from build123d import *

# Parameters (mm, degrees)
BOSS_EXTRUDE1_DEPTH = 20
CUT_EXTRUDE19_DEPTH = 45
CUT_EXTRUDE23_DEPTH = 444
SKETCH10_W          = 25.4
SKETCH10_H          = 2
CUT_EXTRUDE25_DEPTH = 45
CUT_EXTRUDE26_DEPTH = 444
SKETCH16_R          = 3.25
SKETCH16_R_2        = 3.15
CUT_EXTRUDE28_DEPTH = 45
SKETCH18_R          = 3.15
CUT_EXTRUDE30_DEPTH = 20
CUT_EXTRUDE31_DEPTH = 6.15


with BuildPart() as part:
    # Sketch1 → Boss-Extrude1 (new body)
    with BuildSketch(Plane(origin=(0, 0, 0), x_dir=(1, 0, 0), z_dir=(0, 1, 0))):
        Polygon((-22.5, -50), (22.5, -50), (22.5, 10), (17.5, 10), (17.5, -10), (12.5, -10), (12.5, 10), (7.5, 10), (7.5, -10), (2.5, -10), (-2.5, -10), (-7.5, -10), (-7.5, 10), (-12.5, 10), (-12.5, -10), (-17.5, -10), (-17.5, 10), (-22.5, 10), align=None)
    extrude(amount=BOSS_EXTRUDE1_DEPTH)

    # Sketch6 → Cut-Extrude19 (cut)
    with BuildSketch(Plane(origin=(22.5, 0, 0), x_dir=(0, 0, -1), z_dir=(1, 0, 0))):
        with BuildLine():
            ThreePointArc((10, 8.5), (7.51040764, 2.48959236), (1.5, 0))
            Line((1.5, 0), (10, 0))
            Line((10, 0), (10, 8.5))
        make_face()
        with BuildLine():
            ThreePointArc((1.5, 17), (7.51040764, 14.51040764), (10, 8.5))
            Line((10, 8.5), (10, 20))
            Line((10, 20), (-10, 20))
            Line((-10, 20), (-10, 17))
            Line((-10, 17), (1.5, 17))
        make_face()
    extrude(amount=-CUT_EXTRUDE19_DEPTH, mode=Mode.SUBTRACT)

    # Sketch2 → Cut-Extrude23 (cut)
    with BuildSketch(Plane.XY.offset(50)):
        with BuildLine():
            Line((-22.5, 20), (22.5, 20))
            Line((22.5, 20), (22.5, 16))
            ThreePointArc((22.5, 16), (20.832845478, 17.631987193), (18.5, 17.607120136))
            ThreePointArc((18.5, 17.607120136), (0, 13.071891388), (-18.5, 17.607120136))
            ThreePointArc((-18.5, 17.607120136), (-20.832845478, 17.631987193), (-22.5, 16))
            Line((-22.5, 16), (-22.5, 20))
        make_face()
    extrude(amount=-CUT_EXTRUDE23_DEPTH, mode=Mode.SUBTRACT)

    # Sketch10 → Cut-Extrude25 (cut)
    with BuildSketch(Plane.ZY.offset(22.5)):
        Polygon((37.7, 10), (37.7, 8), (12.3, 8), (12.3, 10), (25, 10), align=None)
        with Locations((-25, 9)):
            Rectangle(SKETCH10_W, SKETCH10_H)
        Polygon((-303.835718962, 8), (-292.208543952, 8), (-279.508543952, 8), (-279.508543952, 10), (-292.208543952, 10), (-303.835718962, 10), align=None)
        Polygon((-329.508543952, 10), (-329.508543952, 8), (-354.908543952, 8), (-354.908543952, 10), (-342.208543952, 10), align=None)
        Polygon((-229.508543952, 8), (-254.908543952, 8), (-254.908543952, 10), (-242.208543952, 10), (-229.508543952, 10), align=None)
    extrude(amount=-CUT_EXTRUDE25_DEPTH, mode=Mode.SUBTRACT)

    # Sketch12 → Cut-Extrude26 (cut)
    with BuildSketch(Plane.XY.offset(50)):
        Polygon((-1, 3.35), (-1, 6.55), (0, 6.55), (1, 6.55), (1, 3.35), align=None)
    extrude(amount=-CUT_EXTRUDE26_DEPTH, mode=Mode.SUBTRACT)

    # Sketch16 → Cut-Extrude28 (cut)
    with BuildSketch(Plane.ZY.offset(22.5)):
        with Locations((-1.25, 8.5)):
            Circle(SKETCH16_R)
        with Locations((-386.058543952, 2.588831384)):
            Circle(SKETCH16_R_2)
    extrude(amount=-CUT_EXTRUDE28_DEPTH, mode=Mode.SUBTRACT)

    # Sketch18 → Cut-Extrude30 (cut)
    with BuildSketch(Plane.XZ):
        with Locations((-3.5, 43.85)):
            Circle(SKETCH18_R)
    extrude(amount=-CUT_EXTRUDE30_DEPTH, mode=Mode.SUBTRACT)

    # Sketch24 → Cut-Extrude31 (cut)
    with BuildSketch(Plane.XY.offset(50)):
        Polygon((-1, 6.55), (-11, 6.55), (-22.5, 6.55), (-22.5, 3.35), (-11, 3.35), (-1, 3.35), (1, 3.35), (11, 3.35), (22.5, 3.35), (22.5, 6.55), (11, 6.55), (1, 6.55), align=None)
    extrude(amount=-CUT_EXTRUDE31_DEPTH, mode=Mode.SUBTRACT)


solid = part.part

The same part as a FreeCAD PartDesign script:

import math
import FreeCAD as App
import Part
import Sketcher

V = App.Vector

doc = App.newDocument("Part")
body = doc.addObject("PartDesign::Body", "Body")

sketch1 = doc.addObject("Sketcher::SketchObject", "Sketch")
body.addObject(sketch1)
sketch1.AttachmentSupport = (doc.XZ_Plane, [""])
sketch1.MapMode = "FlatFace"
sketch1.addGeometry([
    Part.LineSegment(V(-22, 50, 0), V(22, 50, 0)),
    Part.LineSegment(V(22, 50, 0), V(22, -10, 0)),
    Part.LineSegment(V(22, -10, 0), V(18, -10, 0)),
    Part.LineSegment(V(18, -10, 0), V(18, 10, 0)),
    Part.LineSegment(V(18, 10, 0), V(12, 10, 0)),
    Part.LineSegment(V(12, 10, 0), V(12, -10, 0)),
    Part.LineSegment(V(12, -10, 0), V(8, -10, 0)),
    Part.LineSegment(V(8, -10, 0), V(8, 10, 0)),
    Part.LineSegment(V(8, 10, 0), V(-8, 10, 0)),
    Part.LineSegment(V(-8, 10, 0), V(-8, -10, 0)),
    Part.LineSegment(V(-8, -10, 0), V(-12, -10, 0)),
    Part.LineSegment(V(-12, -10, 0), V(-12, 10, 0)),
    Part.LineSegment(V(-12, 10, 0), V(-18, 10, 0)),
    Part.LineSegment(V(-18, 10, 0), V(-18, -10, 0)),
    Part.LineSegment(V(-18, -10, 0), V(-22, -10, 0)),
    Part.LineSegment(V(-22, -10, 0), V(-22, 50, 0)),
], False)
sketch1.addConstraint([
    Sketcher.Constraint("Coincident", 0, 2, 1, 1),
    Sketcher.Constraint("Coincident", 1, 2, 2, 1),
    Sketcher.Constraint("Coincident", 2, 2, 3, 1),
    Sketcher.Constraint("Coincident", 3, 2, 4, 1),
    Sketcher.Constraint("Coincident", 4, 2, 5, 1),
    Sketcher.Constraint("Coincident", 5, 2, 6, 1),
    Sketcher.Constraint("Coincident", 6, 2, 7, 1),
    Sketcher.Constraint("Coincident", 7, 2, 8, 1),
    Sketcher.Constraint("Coincident", 8, 2, 9, 1),
    Sketcher.Constraint("Coincident", 9, 2, 10, 1),
    Sketcher.Constraint("Coincident", 10, 2, 11, 1),
    Sketcher.Constraint("Coincident", 11, 2, 12, 1),
    Sketcher.Constraint("Coincident", 12, 2, 13, 1),
    Sketcher.Constraint("Coincident", 13, 2, 14, 1),
    Sketcher.Constraint("Coincident", 14, 2, 15, 1),
    Sketcher.Constraint("Coincident", 15, 2, 0, 1),
    Sketcher.Constraint("Horizontal", 0),
    Sketcher.Constraint("Vertical", 1),
    Sketcher.Constraint("Horizontal", 2),
    Sketcher.Constraint("Vertical", 3),
    Sketcher.Constraint("Horizontal", 4),
    Sketcher.Constraint("Vertical", 5),
    Sketcher.Constraint("Horizontal", 6),
    Sketcher.Constraint("Vertical", 7),
    Sketcher.Constraint("Horizontal", 8),
    Sketcher.Constraint("Vertical", 9),
    Sketcher.Constraint("Horizontal", 10),
    Sketcher.Constraint("Vertical", 11),
    Sketcher.Constraint("Horizontal", 12),
    Sketcher.Constraint("Vertical", 13),
    Sketcher.Constraint("Horizontal", 14),
    Sketcher.Constraint("Vertical", 15),
    Sketcher.Constraint("Symmetric", 6, 2, 8, 2, -1, 1),
    Sketcher.Constraint("Symmetric", 4, 2, 10, 2, -1, 1),
    Sketcher.Constraint("Symmetric", 2, 2, 12, 2, -1, 1),
    Sketcher.Constraint("Symmetric", 1, 2, 14, 2, -2),
    Sketcher.Constraint("Horizontal", 2, 2, 5, 2),
    Sketcher.Constraint("Horizontal", 4, 2, 7, 2),
    Sketcher.Constraint("Equal", 2, 4),
    Sketcher.Constraint("Equal", 4, 6),
    Sketcher.Constraint("DistanceX", 0, 1, 0, 2, 45.0),
    Sketcher.Constraint("DistanceX", 2, 2, 2, 1, 5.0),
    Sketcher.Constraint("DistanceY", 1, 2, 1, 1, 60.0),
    Sketcher.Constraint("DistanceY", 3, 1, 3, 2, 20.0),
])
pad1 = doc.addObject("PartDesign::Pad", "Pad")
body.addObject(pad1)
pad1.Profile = sketch1
pad1.Length = 20
pad1.Reversed = True

sketch2 = doc.addObject("Sketcher::SketchObject", "Sketch001")
body.addObject(sketch2)
sketch2.AttachmentSupport = (doc.YZ_Plane, [""])
sketch2.MapMode = "FlatFace"
sketch2.AttachmentOffset = App.Placement(V(0, 0, 22.5), App.Rotation())
sketch2.addGeometry([
    Part.ArcOfCircle(Part.Circle(V(8.5, -1.5, 0), V(0, 0, 1), 8.5), math.radians(180), math.radians(270)),
    Part.LineSegment(V(0, -1.5, 0), V(0, -10, 0)),
    Part.LineSegment(V(0, -10, 0), V(8.5, -10, 0)),
    Part.ArcOfCircle(Part.Circle(V(8.5, -1.5, 0), V(0, 0, 1), 8.5), math.radians(-90), math.radians(0)),
    Part.LineSegment(V(8.5, -10, 0), V(20, -10, 0)),
    Part.LineSegment(V(20, -10, 0), V(20, 10, 0)),
    Part.LineSegment(V(20, 10, 0), V(17, 10, 0)),
    Part.LineSegment(V(17, 10, 0), V(17, -1.5, 0)),
], False)
sketch2.addConstraint([
    Sketcher.Constraint("Tangent", 0, 1, 1, 1),
    Sketcher.Constraint("Coincident", 1, 2, 2, 1),
    Sketcher.Constraint("Tangent", 2, 2, 0, 2),
    Sketcher.Constraint("Tangent", 3, 1, 4, 1),
    Sketcher.Constraint("Coincident", 4, 2, 5, 1),
    Sketcher.Constraint("Coincident", 5, 2, 6, 1),
    Sketcher.Constraint("Coincident", 6, 2, 7, 1),
    Sketcher.Constraint("Tangent", 7, 2, 3, 2),
    Sketcher.Constraint("Vertical", 1),
    Sketcher.Constraint("Horizontal", 2),
    Sketcher.Constraint("Horizontal", 4),
    Sketcher.Constraint("Vertical", 5),
    Sketcher.Constraint("Horizontal", 6),
    Sketcher.Constraint("Vertical", 7),
    Sketcher.Constraint("Coincident", 3, 3, 0, 3),
    Sketcher.Constraint("Equal", 0, 3),
    Sketcher.Constraint("PointOnObject", 0, 1, -2),
    Sketcher.Constraint("Equal", 4, 7),
    Sketcher.Constraint("Radius", 0, 8.5),
    Sketcher.Constraint("DistanceX", 6, 2, 6, 1, 3.0),
    Sketcher.Constraint("DistanceY", 1, 2, -1, 1, 10.0),
])
pocket1 = doc.addObject("PartDesign::Pocket", "Pocket")
body.addObject(pocket1)
pocket1.Profile = sketch2
pocket1.Length = 45

sketch3 = doc.addObject("Sketcher::SketchObject", "Sketch002")
body.addObject(sketch3)
sketch3.AttachmentSupport = (doc.XY_Plane, [""])
sketch3.MapMode = "FlatFace"
sketch3.AttachmentOffset = App.Placement(V(0, 0, 50), App.Rotation())
sketch3.addGeometry([
    Part.LineSegment(V(22.5, 20, 0), V(-22.5, 20, 0)),
    Part.LineSegment(V(-22.5, 20, 0), V(-22.5, 16, 0)),
    Part.ArcOfCircle(Part.Circle(V(-19.7, 14.8, 0), V(0, 0, 1), 3), math.radians(67), math.radians(157)),
    Part.ArcOfCircle(Part.Circle(V(0, 53.1, 0), V(0, 0, 1), 40), math.radians(-118), math.radians(-62)),
    Part.ArcOfCircle(Part.Circle(V(19.7, 14.8, 0), V(0, 0, 1), 3), math.radians(23), math.radians(113)),
    Part.LineSegment(V(22.5, 16, 0), V(22.5, 20, 0)),
], False)
sketch3.addConstraint([
    Sketcher.Constraint("Coincident", 0, 2, 1, 1),
    Sketcher.Constraint("Coincident", 1, 2, 2, 2),
    Sketcher.Constraint("Coincident", 2, 1, 3, 1),
    Sketcher.Constraint("Coincident", 3, 2, 4, 2),
    Sketcher.Constraint("Coincident", 4, 1, 5, 1),
    Sketcher.Constraint("Coincident", 5, 2, 0, 1),
    Sketcher.Constraint("Horizontal", 0),
    Sketcher.Constraint("Vertical", 1),
    Sketcher.Constraint("Vertical", 5),
    Sketcher.Constraint("Equal", 2, 4),
    Sketcher.Constraint("Symmetric", 2, 3, 4, 3, -2),
    Sketcher.Constraint("PointOnObject", 3, 3, -2),
    Sketcher.Constraint("Horizontal", 1, 2, 4, 1),
    Sketcher.Constraint("Radius", 3, 40.0),
    Sketcher.Constraint("DistanceX", 0, 2, 0, 1, 45.0),
    Sketcher.Constraint("DistanceY", 1, 2, 1, 1, 4.0),
    Sketcher.Constraint("DistanceY", -1, 1, 0, 2, 20.0),
    Sketcher.Constraint("DistanceX", 1, 2, 2, 1, 4.0),
    Sketcher.Constraint("Radius", 2, 3.048183),
    Sketcher.Constraint("DistanceX", 2, 3, -1, 1, 19.69644),
])
pocket2 = doc.addObject("PartDesign::Pocket", "Pocket001")
body.addObject(pocket2)
pocket2.Profile = sketch3
pocket2.Length = 444

sketch4 = doc.addObject("Sketcher::SketchObject", "Sketch003")
body.addObject(sketch4)
sketch4.AttachmentSupport = (doc.YZ_Plane, [""])
sketch4.MapMode = "FlatFace"
sketch4.AttachmentOffset = App.Placement(V(0, 0, -22.5), App.Rotation())
sketch4.addGeometry([
    Part.LineSegment(V(8, 37.7, 0), V(10, 37.7, 0)),
    Part.LineSegment(V(10, 37.7, 0), V(10, 12.3, 0)),
    Part.LineSegment(V(10, 12.3, 0), V(8, 12.3, 0)),
    Part.LineSegment(V(8, 12.3, 0), V(8, 37.7, 0)),
    Part.LineSegment(V(10, -37.7, 0), V(8, -37.7, 0)),
    Part.LineSegment(V(8, -37.7, 0), V(8, -12.3, 0)),
    Part.LineSegment(V(8, -12.3, 0), V(10, -12.3, 0)),
    Part.LineSegment(V(10, -12.3, 0), V(10, -37.7, 0)),
    Part.LineSegment(V(8, -303.8, 0), V(8, -279.5, 0)),
    Part.LineSegment(V(8, -279.5, 0), V(10, -279.5, 0)),
    Part.LineSegment(V(10, -279.5, 0), V(10, -303.8, 0)),
    Part.LineSegment(V(10, -303.8, 0), V(8, -303.8, 0)),
    Part.LineSegment(V(8, -329.5, 0), V(10, -329.5, 0)),
    Part.LineSegment(V(10, -329.5, 0), V(10, -354.9, 0)),
    Part.LineSegment(V(10, -354.9, 0), V(8, -354.9, 0)),
    Part.LineSegment(V(8, -354.9, 0), V(8, -329.5, 0)),
    Part.LineSegment(V(8, -254.9, 0), V(8, -229.5, 0)),
    Part.LineSegment(V(8, -229.5, 0), V(10, -229.5, 0)),
    Part.LineSegment(V(10, -229.5, 0), V(10, -254.9, 0)),
    Part.LineSegment(V(10, -254.9, 0), V(8, -254.9, 0)),
], False)
sketch4.addConstraint([
    Sketcher.Constraint("Coincident", 0, 2, 1, 1),
    Sketcher.Constraint("Coincident", 1, 2, 2, 1),
    Sketcher.Constraint("Coincident", 2, 2, 3, 1),
    Sketcher.Constraint("Coincident", 3, 2, 0, 1),
    Sketcher.Constraint("Coincident", 4, 2, 5, 1),
    Sketcher.Constraint("Coincident", 5, 2, 6, 1),
    Sketcher.Constraint("Coincident", 6, 2, 7, 1),
    Sketcher.Constraint("Coincident", 7, 2, 4, 1),
    Sketcher.Constraint("Coincident", 8, 2, 9, 1),
    Sketcher.Constraint("Coincident", 9, 2, 10, 1),
    Sketcher.Constraint("Coincident", 10, 2, 11, 1),
    Sketcher.Constraint("Coincident", 11, 2, 8, 1),
    Sketcher.Constraint("Coincident", 12, 2, 13, 1),
    Sketcher.Constraint("Coincident", 13, 2, 14, 1),
    Sketcher.Constraint("Coincident", 14, 2, 15, 1),
    Sketcher.Constraint("Coincident", 15, 2, 12, 1),
    Sketcher.Constraint("Coincident", 16, 2, 17, 1),
    Sketcher.Constraint("Coincident", 17, 2, 18, 1),
    Sketcher.Constraint("Coincident", 18, 2, 19, 1),
    Sketcher.Constraint("Coincident", 19, 2, 16, 1),
    Sketcher.Constraint("Horizontal", 0),
    Sketcher.Constraint("Vertical", 1),
    Sketcher.Constraint("Horizontal", 2),
    Sketcher.Constraint("Vertical", 3),
    Sketcher.Constraint("Horizontal", 4),
    Sketcher.Constraint("Vertical", 5),
    Sketcher.Constraint("Horizontal", 6),
    Sketcher.Constraint("Vertical", 7),
    Sketcher.Constraint("Vertical", 8),
    Sketcher.Constraint("Horizontal", 9),
    Sketcher.Constraint("Vertical", 10),
    Sketcher.Constraint("Horizontal", 11),
    Sketcher.Constraint("Horizontal", 12),
    Sketcher.Constraint("Vertical", 13),
    Sketcher.Constraint("Horizontal", 14),
    Sketcher.Constraint("Vertical", 15),
    Sketcher.Constraint("Vertical", 16),
    Sketcher.Constraint("Horizontal", 17),
    Sketcher.Constraint("Vertical", 18),
    Sketcher.Constraint("Horizontal", 19),
    Sketcher.Constraint("Symmetric", 3, 2, 4, 2, -1),
    Sketcher.Constraint("Symmetric", 1, 2, 6, 2, -1),
    Sketcher.Constraint("Vertical", 5, 2, 8, 2),
    Sketcher.Constraint("Vertical", 7, 2, 9, 2),
    Sketcher.Constraint("Vertical", 10, 2, 12, 2),
    Sketcher.Constraint("Vertical", 11, 2, 14, 2),
    Sketcher.Constraint("Vertical", 15, 2, 16, 2),
    Sketcher.Constraint("Vertical", 13, 2, 17, 2),
    Sketcher.Constraint("Equal", 7, 13),
    Sketcher.Constraint("Equal", 15, 16),
    Sketcher.Constraint("DistanceX", 0, 1, 0, 2, 2.0),
    Sketcher.Constraint("DistanceY", 1, 2, 1, 1, 25.4),
    Sketcher.Constraint("DistanceX", -1, 1, 0, 2, 10.0),
    Sketcher.Constraint("DistanceY", 4, 2, 2, 2, 50.0),
    Sketcher.Constraint("DistanceY", 12, 2, 9, 2, 50.0),
    Sketcher.Constraint("DistanceY", 8, 2, 16, 2, 50.0),
    Sketcher.Constraint("DistanceY", 8, 1, 8, 2, 24.327175),
    Sketcher.Constraint("DistanceY", 10, 2, -1, 1, 303.835719),
])
pocket3 = doc.addObject("PartDesign::Pocket", "Pocket002")
body.addObject(pocket3)
pocket3.Profile = sketch4
pocket3.Length = 45
pocket3.Reversed = True

sketch5 = doc.addObject("Sketcher::SketchObject", "Sketch004")
body.addObject(sketch5)
sketch5.AttachmentSupport = (doc.XY_Plane, [""])
sketch5.MapMode = "FlatFace"
sketch5.AttachmentOffset = App.Placement(V(0, 0, 50), App.Rotation())
sketch5.addGeometry([
    Part.LineSegment(V(-1, 6.5, 0), V(-1, 3.4, 0)),
    Part.LineSegment(V(-1, 3.4, 0), V(1, 3.4, 0)),
    Part.LineSegment(V(1, 3.4, 0), V(1, 6.5, 0)),
    Part.LineSegment(V(1, 6.5, 0), V(-1, 6.5, 0)),
], False)
sketch5.addConstraint([
    Sketcher.Constraint("Coincident", 0, 2, 1, 1),
    Sketcher.Constraint("Coincident", 1, 2, 2, 1),
    Sketcher.Constraint("Coincident", 2, 2, 3, 1),
    Sketcher.Constraint("Coincident", 3, 2, 0, 1),
    Sketcher.Constraint("Vertical", 0),
    Sketcher.Constraint("Horizontal", 1),
    Sketcher.Constraint("Vertical", 2),
    Sketcher.Constraint("Horizontal", 3),
    Sketcher.Constraint("DistanceX", 1, 1, 1, 2, 2.0),
    Sketcher.Constraint("DistanceY", 0, 2, 0, 1, 3.2),
    Sketcher.Constraint("DistanceX", 0, 2, -1, 1, 1.0),
    Sketcher.Constraint("DistanceY", -1, 1, 0, 2, 3.35),
])
pocket4 = doc.addObject("PartDesign::Pocket", "Pocket003")
body.addObject(pocket4)
pocket4.Profile = sketch5
pocket4.Length = 444

sketch6 = doc.addObject("Sketcher::SketchObject", "Sketch005")
body.addObject(sketch6)
sketch6.AttachmentSupport = (doc.YZ_Plane, [""])
sketch6.MapMode = "FlatFace"
sketch6.AttachmentOffset = App.Placement(V(0, 0, -22.5), App.Rotation())
sketch6.addGeometry([
    Part.Circle(V(8.5, -1.2, 0), V(0, 0, 1), 3.2),
    Part.Circle(V(2.6, -386.1, 0), V(0, 0, 1), 3.1),
], False)
sketch6.addConstraint([
    Sketcher.Constraint("Diameter", 0, 6.5),
    Sketcher.Constraint("Diameter", 1, 6.3),
    Sketcher.Constraint("DistanceX", -1, 1, 0, 3, 8.5),
    Sketcher.Constraint("DistanceY", 0, 3, -1, 1, 1.25),
    Sketcher.Constraint("DistanceX", -1, 1, 1, 3, 2.588831),
    Sketcher.Constraint("DistanceY", 1, 3, -1, 1, 386.058544),
])
pocket5 = doc.addObject("PartDesign::Pocket", "Pocket004")
body.addObject(pocket5)
pocket5.Profile = sketch6
pocket5.Length = 45
pocket5.Reversed = True

sketch7 = doc.addObject("Sketcher::SketchObject", "Sketch006")
body.addObject(sketch7)
sketch7.AttachmentSupport = (doc.XZ_Plane, [""])
sketch7.MapMode = "FlatFace"
sketch7.addGeometry(Part.Circle(V(-3.5, 43.9, 0), V(0, 0, 1), 3.1), False)
sketch7.addConstraint([
    Sketcher.Constraint("Diameter", 0, 6.3),
    Sketcher.Constraint("DistanceX", 0, 3, -1, 1, 3.5),
    Sketcher.Constraint("DistanceY", -1, 1, 0, 3, 43.85),
])
pocket6 = doc.addObject("PartDesign::Pocket", "Pocket005")
body.addObject(pocket6)
pocket6.Profile = sketch7
pocket6.Length = 20

sketch8 = doc.addObject("Sketcher::SketchObject", "Sketch007")
body.addObject(sketch8)
sketch8.AttachmentSupport = (doc.XY_Plane, [""])
sketch8.MapMode = "FlatFace"
sketch8.AttachmentOffset = App.Placement(V(0, 0, 50), App.Rotation())
sketch8.addGeometry([
    Part.LineSegment(V(-22.5, 6.5, 0), V(-22.5, 3.4, 0)),
    Part.LineSegment(V(-22.5, 3.4, 0), V(22.5, 3.4, 0)),
    Part.LineSegment(V(22.5, 3.4, 0), V(22.5, 6.5, 0)),
    Part.LineSegment(V(22.5, 6.5, 0), V(-22.5, 6.5, 0)),
], False)
sketch8.addConstraint([
    Sketcher.Constraint("Coincident", 0, 2, 1, 1),
    Sketcher.Constraint("Coincident", 1, 2, 2, 1),
    Sketcher.Constraint("Coincident", 2, 2, 3, 1),
    Sketcher.Constraint("Coincident", 3, 2, 0, 1),
    Sketcher.Constraint("Vertical", 0),
    Sketcher.Constraint("Horizontal", 1),
    Sketcher.Constraint("Vertical", 2),
    Sketcher.Constraint("Horizontal", 3),
    Sketcher.Constraint("DistanceX", 1, 1, 1, 2, 45.0),
    Sketcher.Constraint("DistanceY", 0, 2, 0, 1, 3.2),
    Sketcher.Constraint("DistanceX", 0, 2, -1, 1, 22.5),
    Sketcher.Constraint("DistanceY", -1, 1, 0, 2, 3.35),
])
pocket7 = doc.addObject("PartDesign::Pocket", "Pocket006")
body.addObject(pocket7)
pocket7.Profile = sketch8
pocket7.Length = 6.15

doc.recompute()
